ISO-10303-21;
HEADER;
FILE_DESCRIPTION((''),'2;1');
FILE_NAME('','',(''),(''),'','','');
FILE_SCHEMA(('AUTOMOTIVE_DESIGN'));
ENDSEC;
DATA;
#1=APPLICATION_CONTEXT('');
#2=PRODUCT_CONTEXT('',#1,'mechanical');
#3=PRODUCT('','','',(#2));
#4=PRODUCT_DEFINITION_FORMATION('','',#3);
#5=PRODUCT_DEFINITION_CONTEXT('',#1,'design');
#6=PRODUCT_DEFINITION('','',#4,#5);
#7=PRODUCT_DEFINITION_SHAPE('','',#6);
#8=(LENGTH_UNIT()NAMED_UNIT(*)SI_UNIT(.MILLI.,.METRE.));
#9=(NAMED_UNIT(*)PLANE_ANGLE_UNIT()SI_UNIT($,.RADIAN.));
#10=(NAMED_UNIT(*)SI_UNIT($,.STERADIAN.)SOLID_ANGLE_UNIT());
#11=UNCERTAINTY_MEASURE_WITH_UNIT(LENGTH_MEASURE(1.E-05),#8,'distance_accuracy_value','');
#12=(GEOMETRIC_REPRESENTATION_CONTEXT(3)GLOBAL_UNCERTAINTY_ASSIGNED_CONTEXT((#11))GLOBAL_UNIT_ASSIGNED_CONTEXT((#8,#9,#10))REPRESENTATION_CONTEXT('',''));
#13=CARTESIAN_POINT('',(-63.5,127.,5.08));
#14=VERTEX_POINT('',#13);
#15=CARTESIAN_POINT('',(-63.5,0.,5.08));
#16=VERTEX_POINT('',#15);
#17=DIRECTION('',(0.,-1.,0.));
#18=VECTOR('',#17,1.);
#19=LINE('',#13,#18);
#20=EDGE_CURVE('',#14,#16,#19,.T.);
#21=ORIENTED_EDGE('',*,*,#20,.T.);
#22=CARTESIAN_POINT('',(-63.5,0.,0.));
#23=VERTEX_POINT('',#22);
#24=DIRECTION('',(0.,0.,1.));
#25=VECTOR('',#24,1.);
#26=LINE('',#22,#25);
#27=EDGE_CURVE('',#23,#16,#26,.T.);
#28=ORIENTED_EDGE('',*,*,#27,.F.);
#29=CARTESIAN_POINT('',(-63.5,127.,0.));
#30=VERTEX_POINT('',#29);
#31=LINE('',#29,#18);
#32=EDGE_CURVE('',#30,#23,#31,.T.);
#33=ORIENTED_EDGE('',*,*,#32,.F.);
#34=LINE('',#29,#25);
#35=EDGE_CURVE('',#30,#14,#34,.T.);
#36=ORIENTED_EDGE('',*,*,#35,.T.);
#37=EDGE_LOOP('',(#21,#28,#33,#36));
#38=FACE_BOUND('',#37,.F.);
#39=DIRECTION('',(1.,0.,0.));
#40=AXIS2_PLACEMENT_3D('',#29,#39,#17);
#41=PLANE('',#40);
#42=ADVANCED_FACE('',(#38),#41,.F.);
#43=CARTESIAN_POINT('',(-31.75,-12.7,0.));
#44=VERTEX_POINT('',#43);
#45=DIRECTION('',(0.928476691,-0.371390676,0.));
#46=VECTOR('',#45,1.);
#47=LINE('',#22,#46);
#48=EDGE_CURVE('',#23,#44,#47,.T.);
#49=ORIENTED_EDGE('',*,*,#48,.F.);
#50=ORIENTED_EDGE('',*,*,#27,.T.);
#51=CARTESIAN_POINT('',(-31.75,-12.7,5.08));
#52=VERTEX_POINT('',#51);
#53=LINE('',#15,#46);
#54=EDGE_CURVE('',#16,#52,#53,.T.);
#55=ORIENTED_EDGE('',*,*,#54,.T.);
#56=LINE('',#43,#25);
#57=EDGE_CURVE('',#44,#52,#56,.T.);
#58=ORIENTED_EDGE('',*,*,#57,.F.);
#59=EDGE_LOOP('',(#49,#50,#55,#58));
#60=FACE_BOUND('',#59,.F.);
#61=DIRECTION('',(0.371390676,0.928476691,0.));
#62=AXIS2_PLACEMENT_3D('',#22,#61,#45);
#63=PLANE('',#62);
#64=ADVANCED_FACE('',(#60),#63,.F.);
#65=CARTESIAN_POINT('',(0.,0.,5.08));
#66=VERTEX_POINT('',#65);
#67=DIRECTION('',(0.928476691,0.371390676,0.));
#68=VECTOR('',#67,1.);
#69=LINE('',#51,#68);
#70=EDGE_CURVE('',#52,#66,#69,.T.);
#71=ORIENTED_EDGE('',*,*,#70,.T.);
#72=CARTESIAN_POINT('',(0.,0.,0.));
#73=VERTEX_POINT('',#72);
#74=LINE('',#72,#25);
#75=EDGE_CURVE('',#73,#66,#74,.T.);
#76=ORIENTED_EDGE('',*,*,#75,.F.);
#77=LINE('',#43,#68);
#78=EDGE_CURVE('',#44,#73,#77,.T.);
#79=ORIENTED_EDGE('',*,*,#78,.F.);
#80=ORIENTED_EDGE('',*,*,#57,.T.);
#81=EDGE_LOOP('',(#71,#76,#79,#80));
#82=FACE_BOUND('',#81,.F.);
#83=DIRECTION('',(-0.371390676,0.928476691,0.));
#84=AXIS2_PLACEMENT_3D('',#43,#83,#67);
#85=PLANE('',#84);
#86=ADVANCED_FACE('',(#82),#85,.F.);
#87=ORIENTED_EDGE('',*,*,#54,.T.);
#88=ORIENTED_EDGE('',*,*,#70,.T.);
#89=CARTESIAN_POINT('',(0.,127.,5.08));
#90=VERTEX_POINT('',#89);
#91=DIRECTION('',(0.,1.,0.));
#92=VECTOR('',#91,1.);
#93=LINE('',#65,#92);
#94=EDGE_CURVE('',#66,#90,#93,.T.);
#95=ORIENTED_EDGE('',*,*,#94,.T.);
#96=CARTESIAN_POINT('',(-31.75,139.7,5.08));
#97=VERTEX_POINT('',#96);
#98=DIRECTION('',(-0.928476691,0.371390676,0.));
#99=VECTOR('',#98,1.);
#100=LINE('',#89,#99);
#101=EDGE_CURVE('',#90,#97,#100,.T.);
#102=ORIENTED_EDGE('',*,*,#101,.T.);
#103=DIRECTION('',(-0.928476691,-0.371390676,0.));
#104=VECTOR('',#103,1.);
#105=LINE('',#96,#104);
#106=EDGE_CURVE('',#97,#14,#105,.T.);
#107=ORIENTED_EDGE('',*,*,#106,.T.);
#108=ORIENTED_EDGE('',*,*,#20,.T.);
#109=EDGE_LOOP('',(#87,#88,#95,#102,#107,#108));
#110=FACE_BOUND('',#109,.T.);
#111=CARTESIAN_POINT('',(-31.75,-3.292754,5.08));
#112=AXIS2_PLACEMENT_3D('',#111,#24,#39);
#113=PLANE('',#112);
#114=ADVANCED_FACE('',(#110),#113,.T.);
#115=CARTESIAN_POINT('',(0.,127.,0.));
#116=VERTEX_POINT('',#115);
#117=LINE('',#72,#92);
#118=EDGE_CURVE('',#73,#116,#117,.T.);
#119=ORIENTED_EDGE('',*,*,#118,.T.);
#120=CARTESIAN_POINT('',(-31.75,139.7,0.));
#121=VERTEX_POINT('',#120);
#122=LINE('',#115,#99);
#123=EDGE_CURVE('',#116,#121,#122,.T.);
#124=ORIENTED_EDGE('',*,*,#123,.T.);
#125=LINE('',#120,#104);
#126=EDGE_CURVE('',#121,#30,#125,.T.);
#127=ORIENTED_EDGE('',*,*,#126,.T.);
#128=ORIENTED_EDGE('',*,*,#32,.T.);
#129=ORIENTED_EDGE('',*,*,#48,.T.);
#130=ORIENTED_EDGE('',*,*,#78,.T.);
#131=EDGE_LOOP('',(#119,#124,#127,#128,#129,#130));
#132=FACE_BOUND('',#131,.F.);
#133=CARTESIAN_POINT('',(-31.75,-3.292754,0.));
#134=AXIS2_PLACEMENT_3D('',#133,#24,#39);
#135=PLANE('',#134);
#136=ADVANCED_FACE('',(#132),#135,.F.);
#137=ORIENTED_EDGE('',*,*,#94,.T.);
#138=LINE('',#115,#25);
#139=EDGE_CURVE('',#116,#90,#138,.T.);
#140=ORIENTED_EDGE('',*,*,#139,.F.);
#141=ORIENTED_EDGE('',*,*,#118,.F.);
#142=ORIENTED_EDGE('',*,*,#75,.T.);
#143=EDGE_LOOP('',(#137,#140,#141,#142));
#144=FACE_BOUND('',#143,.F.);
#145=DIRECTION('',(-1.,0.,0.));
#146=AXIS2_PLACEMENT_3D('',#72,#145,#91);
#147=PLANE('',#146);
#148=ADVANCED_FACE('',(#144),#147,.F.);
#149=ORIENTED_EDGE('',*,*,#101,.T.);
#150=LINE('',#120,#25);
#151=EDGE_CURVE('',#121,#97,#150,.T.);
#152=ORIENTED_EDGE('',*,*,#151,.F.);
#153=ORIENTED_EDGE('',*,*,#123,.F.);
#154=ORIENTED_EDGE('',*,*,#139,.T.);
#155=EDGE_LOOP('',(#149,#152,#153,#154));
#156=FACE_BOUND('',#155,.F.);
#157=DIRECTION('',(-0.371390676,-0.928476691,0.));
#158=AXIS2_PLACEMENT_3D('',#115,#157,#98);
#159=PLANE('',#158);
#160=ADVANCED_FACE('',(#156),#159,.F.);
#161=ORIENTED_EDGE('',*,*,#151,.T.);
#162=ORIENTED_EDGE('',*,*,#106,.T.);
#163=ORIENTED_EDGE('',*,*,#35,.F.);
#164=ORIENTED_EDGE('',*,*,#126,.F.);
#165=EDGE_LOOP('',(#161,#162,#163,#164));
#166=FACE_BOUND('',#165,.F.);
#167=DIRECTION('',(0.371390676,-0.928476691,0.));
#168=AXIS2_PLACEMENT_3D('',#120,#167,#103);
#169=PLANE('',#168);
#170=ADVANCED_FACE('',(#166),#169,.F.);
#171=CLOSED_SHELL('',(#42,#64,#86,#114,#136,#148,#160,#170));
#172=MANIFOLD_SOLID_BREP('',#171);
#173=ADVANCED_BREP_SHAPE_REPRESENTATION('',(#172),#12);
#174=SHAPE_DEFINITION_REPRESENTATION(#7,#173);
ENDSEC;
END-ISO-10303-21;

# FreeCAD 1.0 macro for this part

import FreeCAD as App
import Part
import Sketcher
Q = App.Units.Quantity

doc = App.newDocument("Part")
params = doc.addObject("Spreadsheet::Sheet", "Params")
for row, (alias, value) in enumerate([
    ("sketch1_height", "5 in"),
    ("pad1_length", "0.2 in"),
], start=1):
    params.set(f"A{row}", alias)
    params.set(f"B{row}", "=" + value)
    params.setAlias(f"B{row}", alias)

body = doc.addObject("PartDesign::Body", "Body")

sketch1 = body.newObject("Sketcher::SketchObject", "Sketch")
sketch1.AttachmentSupport = (doc.getObject("XY_Plane"), [""])
sketch1.MapMode = "FlatFace"
sketch1.addGeometry(Part.LineSegment(App.Vector(-32, -13, 0), App.Vector(0, 0, 0)), False)
sketch1.addGeometry(Part.LineSegment(App.Vector(0, 0, 0), App.Vector(0, 127, 0)), False)
sketch1.addGeometry(Part.LineSegment(App.Vector(0, 127, 0), App.Vector(-32, 140, 0)), False)
sketch1.addGeometry(Part.LineSegment(App.Vector(-32, 140, 0), App.Vector(-64, 127, 0)), False)
sketch1.addGeometry(Part.LineSegment(App.Vector(-64, 127, 0), App.Vector(-64, 0, 0)), False)
sketch1.addGeometry(Part.LineSegment(App.Vector(-64, 0, 0), App.Vector(-32, -13, 0)), False)
sketch1.addConstraint(Sketcher.Constraint("Coincident", 0, 2, 1, 1))
sketch1.addConstraint(Sketcher.Constraint("Coincident", 1, 2, 2, 1))
sketch1.addConstraint(Sketcher.Constraint("Coincident", 2, 2, 3, 1))
sketch1.addConstraint(Sketcher.Constraint("Coincident", 3, 2, 4, 1))
sketch1.addConstraint(Sketcher.Constraint("Coincident", 4, 2, 5, 1))
sketch1.addConstraint(Sketcher.Constraint("Coincident", 5, 2, 0, 1))
sketch1.addConstraint(Sketcher.Constraint("Vertical", 1))
sketch1.addConstraint(Sketcher.Constraint("Vertical", 4))
sketch1.addConstraint(Sketcher.Constraint("Coincident", 0, 2, -1, 1))
sketch1.addConstraint(Sketcher.Constraint("PointOnObject", 4, 2, -1))
sketch1.addConstraint(Sketcher.Constraint("Parallel", 0, 3))
sketch1.addConstraint(Sketcher.Constraint("Parallel", 2, 5))
sketch1.addConstraint(Sketcher.Constraint("Horizontal", 1, 2, 3, 2))
sketch1.addConstraint(Sketcher.Constraint("Vertical", 2, 2, 5, 2))
sketch1.addConstraint(Sketcher.Constraint("DistanceY", 1, 1, 1, 2, Q("5 in")))
sketch1.addConstraint(Sketcher.Constraint("DistanceY", 5, 2, 2, 2, Q("6 in")))
sketch1.addConstraint(Sketcher.Constraint("DistanceX", 3, 2, -1, 1, Q("2.5 in")))
sketch1.setExpression("Constraints[14]", "Params.sketch1_height")
pad1 = body.newObject("PartDesign::Pad", "Pad")
pad1.Profile = sketch1
pad1.setExpression("Length", "Params.pad1_length")

doc.recompute()
